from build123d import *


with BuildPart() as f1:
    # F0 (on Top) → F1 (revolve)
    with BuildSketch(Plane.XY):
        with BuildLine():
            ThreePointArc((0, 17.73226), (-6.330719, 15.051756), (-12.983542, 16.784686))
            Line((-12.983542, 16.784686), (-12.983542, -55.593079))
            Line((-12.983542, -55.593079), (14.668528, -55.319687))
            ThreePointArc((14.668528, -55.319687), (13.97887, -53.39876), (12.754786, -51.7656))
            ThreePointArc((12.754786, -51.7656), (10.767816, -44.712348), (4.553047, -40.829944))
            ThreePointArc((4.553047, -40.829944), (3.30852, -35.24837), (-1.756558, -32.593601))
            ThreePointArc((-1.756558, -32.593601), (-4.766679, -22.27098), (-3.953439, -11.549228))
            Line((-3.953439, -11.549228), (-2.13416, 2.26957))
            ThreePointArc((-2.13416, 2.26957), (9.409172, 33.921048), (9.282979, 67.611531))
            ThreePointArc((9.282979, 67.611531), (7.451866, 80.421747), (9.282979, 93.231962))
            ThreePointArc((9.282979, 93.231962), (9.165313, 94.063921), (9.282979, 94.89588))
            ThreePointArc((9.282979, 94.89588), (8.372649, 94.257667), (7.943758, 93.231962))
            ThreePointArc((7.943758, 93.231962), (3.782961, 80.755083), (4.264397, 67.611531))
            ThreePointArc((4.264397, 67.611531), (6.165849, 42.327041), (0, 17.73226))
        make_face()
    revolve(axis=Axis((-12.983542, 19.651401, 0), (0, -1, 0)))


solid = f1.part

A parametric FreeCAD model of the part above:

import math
import FreeCAD as App
import Part
import Sketcher

V = App.Vector
Q = App.Units.Quantity

doc = App.newDocument("Part")
body = doc.addObject("PartDesign::Body", "Body")

# Sketch on XY plane
sketch1 = body.newObject("Sketcher::SketchObject", "Sketch")
sketch1.AttachmentSupport = (doc.getObject("XY_Plane"), [""])
sketch1.MapMode = "FlatFace"
sketch1.addGeometry(Part.ArcOfCircle(Part.Circle(V(-7.108144, 25.703935, 0), V(0, 0, 1), 10.680511), math.radians(-123.37419), math.radians(-48.27741)), False)
sketch1.addGeometry(Part.LineSegment(V(-12.983542, 16.784686, 0), V(-12.983542, -55.593079, 0)), False)
sketch1.addGeometry(Part.LineSegment(V(-12.983542, -55.593079, 0), V(14.668528, -55.319687, 0)), False)
sketch1.addGeometry(Part.ArcOfCircle(Part.Circle(V(7.936332, -56.652439, 0), V(0, 0, 1), 6.862849), math.radians(11.197878), math.radians(45.403704)), False)
sketch1.addGeometry(Part.ArcOfCircle(Part.Circle(V(2.639304, -50.80873, 0), V(0, 0, 1), 10.160639), math.radians(-5.403794), math.radians(79.143569)), False)
sketch1.addGeometry(Part.ArcOfCircle(Part.Circle(V(-2.085594, -39.380632, 0), V(0, 0, 1), 6.795003), math.radians(-12.315272), math.radians(87.224466)), False)
sketch1.addGeometry(Part.ArcOfCircle(Part.Circle(V(25.147036, -19.148204, 0), V(0, 0, 1), 30.076271), math.radians(165.365214), math.radians(206.554147)), False)
sketch1.addGeometry(Part.LineSegment(V(-3.953439, -11.549228, 0), V(-2.13416, 2.26957, 0)), False)
sketch1.addGeometry(Part.ArcOfCircle(Part.Circle(V(-84.976625, 50.412989, 0), V(0, 0, 1), 95.815776), math.radians(-30.162765), math.radians(10.340401)), False)
sketch1.addGeometry(Part.ArcOfCircle(Part.Circle(V(53.176678, 80.421746, 0), V(0, 0, 1), 45.724812), math.radians(163.730308), math.radians(196.269692)), False)
sketch1.addGeometry(Part.ArcOfCircle(Part.Circle(V(12.165335, 94.063921, 0), V(0, 0, 1), 3.000022), math.radians(163.89982), math.radians(196.10018)), False)
sketch1.addGeometry(Part.ArcOfCircle(Part.Circle(V(9.930688, 93.003663, 0), V(0, 0, 1), 2.000003), math.radians(108.896168), math.radians(173.445439)), False)
sketch1.addGeometry(Part.ArcOfCircle(Part.Circle(V(40.293236, 75.511827, 0), V(0, 0, 1), 36.884847), math.radians(151.28731), math.radians(192.3679)), False)
sketch1.addGeometry(Part.ArcOfCircle(Part.Circle(V(-72.950544, 49.091047, 0), V(0, 0, 1), 79.405009), math.radians(-23.261112), math.radians(13.487944)), False)
sketch1.addGeometry(Part.LineSegment(V(-12.983542, 94.89588, 0), V(-12.983542, -56.652439, 0)), True)  # axis
sketch1.addConstraint(Sketcher.Constraint("Coincident", 0, 1, 1, 1))
sketch1.addConstraint(Sketcher.Constraint("Coincident", 1, 2, 2, 1))
sketch1.addConstraint(Sketcher.Constraint("Coincident", 2, 2, 3, 1))
sketch1.addConstraint(Sketcher.Constraint("Coincident", 3, 2, 4, 1))
sketch1.addConstraint(Sketcher.Constraint("Coincident", 4, 2, 5, 1))
sketch1.addConstraint(Sketcher.Constraint("Coincident", 5, 2, 6, 2))
sketch1.addConstraint(Sketcher.Constraint("Coincident", 6, 1, 7, 1))
sketch1.addConstraint(Sketcher.Constraint("Coincident", 7, 2, 8, 1))
sketch1.addConstraint(Sketcher.Constraint("Coincident", 8, 2, 9, 2))
sketch1.addConstraint(Sketcher.Constraint("Coincident", 9, 1, 10, 2))
sketch1.addConstraint(Sketcher.Constraint("Coincident", 10, 1, 11, 1))
sketch1.addConstraint(Sketcher.Constraint("Coincident", 11, 2, 12, 1))
sketch1.addConstraint(Sketcher.Constraint("Coincident", 12, 2, 13, 2))
sketch1.addConstraint(Sketcher.Constraint("Coincident", 13, 1, 0, 2))
sketch1.addConstraint(Sketcher.Constraint("Vertical", 1))
sketch1.addConstraint(Sketcher.Constraint("Vertical", 14))
sketch1.addConstraint(Sketcher.Constraint("PointOnObject", 13, 1, -2))
sketch1.addConstraint(Sketcher.Constraint("Horizontal", 9, 1, 11, 2))
sketch1.addConstraint(Sketcher.Constraint("Horizontal", 8, 2, 12, 2))
sketch1.addConstraint(Sketcher.Constraint("Horizontal", 10, 1, 14, 1))
sketch1.addConstraint(Sketcher.Constraint("Horizontal", 3, 3, 14, 2))
sketch1.addConstraint(Sketcher.Constraint("Vertical", 8, 2, 9, 1))
sketch1.addConstraint(Sketcher.Constraint("Vertical", 9, 1, 10, 1))
sketch1.addConstraint(Sketcher.Constraint("Vertical", 1, 2, 14, 1))
sketch1.addConstraint(Sketcher.Constraint("Angle", 7, Q("82.500001 deg")))
sketch1.addConstraint(Sketcher.Constraint("Radius", 0, Q("10.680511 mm")))
sketch1.addConstraint(Sketcher.Constraint("Radius", 3, Q("6.862849 mm")))
sketch1.addConstraint(Sketcher.Constraint("Radius", 4, Q("10.160639 mm")))
sketch1.addConstraint(Sketcher.Constraint("Radius", 6, Q("30.076271 mm")))
sketch1.addConstraint(Sketcher.Constraint("Radius", 10, Q("3.000022 mm")))
sketch1.addConstraint(Sketcher.Constraint("Radius", 13, Q("79.405009 mm")))
sketch1.addConstraint(Sketcher.Constraint("Radius", 5, Q("6.795003 mm")))
sketch1.addConstraint(Sketcher.Constraint("Radius", 8, Q("95.815776 mm")))
sketch1.addConstraint(Sketcher.Constraint("Radius", 9, Q("45.724812 mm")))
sketch1.addConstraint(Sketcher.Constraint("Radius", 11, Q("2.000003 mm")))
sketch1.addConstraint(Sketcher.Constraint("Radius", 12, Q("36.884847 mm")))
sketch1.addConstraint(Sketcher.Constraint("DistanceX", 13, 3, 0, 1, Q("59.967002 mm")))
sketch1.addConstraint(Sketcher.Constraint("DistanceY", 3, 2, 5, 2, Q("19.171999 mm")))
sketch1.addConstraint(Sketcher.Constraint("DistanceY", 14, 2, 14, 1, Q("151.548319 mm")))
sketch1.addConstraint(Sketcher.Constraint("DistanceY", 3, 2, -1, 1, Q("51.7656 mm")))
sketch1.addConstraint(Sketcher.Constraint("DistanceX", 5, 3, 4, 3, Q("4.724898 mm")))
sketch1.addConstraint(Sketcher.Constraint("DistanceX", 10, 3, 6, 3, Q("12.981702 mm")))
sketch1.addConstraint(Sketcher.Constraint("DistanceX", 10, 3, 12, 3, Q("28.127901 mm")))
sketch1.addConstraint(Sketcher.Constraint("DistanceX", 13, 3, 0, 3, Q("65.8424 mm")))
sketch1.addConstraint(Sketcher.Constraint("DistanceY", 6, 1, 7, 2, Q("13.818798 mm")))
sketch1.addConstraint(Sketcher.Constraint("DistanceX", 8, 2, 9, 3, Q("43.893699 mm")))
sketch1.addConstraint(Sketcher.Constraint("DistanceY", 11, 3, 9, 1, Q("0.228299 mm")))
sketch1.addConstraint(Sketcher.Constraint("DistanceX", 14, 1, 11, 2, Q("20.9273 mm")))
sketch1.addConstraint(Sketcher.Constraint("Distance", 2, Q("27.653421 mm")))
sketch1.addConstraint(Sketcher.Constraint("DistanceY", 1, 2, 1, 1, Q("72.377765 mm")))
sketch1.addConstraint(Sketcher.Constraint("DistanceX", -1, 1, 3, 3, Q("7.936332 mm")))
sketch1.addConstraint(Sketcher.Constraint("DistanceY", 3, 3, -1, 1, Q("56.652439 mm")))
sketch1.addConstraint(Sketcher.Constraint("DistanceY", 4, 3, -1, 1, Q("50.80873 mm")))
sketch1.addConstraint(Sketcher.Constraint("DistanceY", -1, 1, 8, 3, Q("50.412989 mm")))
sketch1.addConstraint(Sketcher.Constraint("DistanceX", -1, 1, 9, 3, Q("53.176678 mm")))
sketch1.addConstraint(Sketcher.Constraint("DistanceY", -1, 1, 10, 3, Q("94.063921 mm")))
sketch1.addConstraint(Sketcher.Constraint("DistanceX", 6, 1, -1, 1, Q("3.953439 mm")))
revolution = body.newObject("PartDesign::Revolution", "Revolution")
revolution.Profile = sketch1
revolution.ReferenceAxis = (sketch1, ["Axis0"])
revolution.Angle = 360

doc.recompute()
